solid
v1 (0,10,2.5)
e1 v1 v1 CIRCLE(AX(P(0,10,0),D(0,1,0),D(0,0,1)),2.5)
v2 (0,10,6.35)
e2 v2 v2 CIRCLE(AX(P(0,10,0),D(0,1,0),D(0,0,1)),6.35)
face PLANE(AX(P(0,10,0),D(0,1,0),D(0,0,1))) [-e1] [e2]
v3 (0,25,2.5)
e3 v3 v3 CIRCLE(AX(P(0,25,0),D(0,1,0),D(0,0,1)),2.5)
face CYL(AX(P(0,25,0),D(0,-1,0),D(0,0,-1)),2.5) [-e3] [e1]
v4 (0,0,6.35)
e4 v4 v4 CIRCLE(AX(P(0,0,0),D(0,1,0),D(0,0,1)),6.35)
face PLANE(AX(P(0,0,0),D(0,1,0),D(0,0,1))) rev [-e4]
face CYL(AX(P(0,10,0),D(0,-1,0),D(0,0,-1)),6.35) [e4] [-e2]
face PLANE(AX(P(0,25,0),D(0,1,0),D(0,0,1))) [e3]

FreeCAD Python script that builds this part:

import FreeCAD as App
import Part
import Sketcher
Q = App.Units.Quantity

doc = App.newDocument("Part")
body = doc.addObject("PartDesign::Body", "Body")

# Sketch on XZ plane
sketch1 = doc.addObject("Sketcher::SketchObject", "Sketch")
body.addObject(sketch1)
sketch1.AttachmentSupport = (doc.XZ_Plane, [""])
sketch1.MapMode = "FlatFace"
sketch1.addGeometry(Part.Circle(App.Vector(0, 0, 0), App.Vector(0, 0, 1), 6), False)
sketch1.addConstraint([
    Sketcher.Constraint("Coincident", 0, 3, -1, 1),
    Sketcher.Constraint("Diameter", 0, Q("12.7 mm")),
])
pad1 = doc.addObject("PartDesign::Pad", "Pad")
body.addObject(pad1)
pad1.Profile = sketch1
pad1.Length = 10
pad1.Reversed = True

# Sketch on XZ plane
sketch2 = doc.addObject("Sketcher::SketchObject", "Sketch001")
body.addObject(sketch2)
sketch2.AttachmentSupport = (doc.XZ_Plane, [""])
sketch2.MapMode = "FlatFace"
sketch2.AttachmentOffset = App.Placement(App.Vector(0, 0, -10), App.Rotation())
sketch2.addGeometry(Part.Circle(App.Vector(0, 0, 0), App.Vector(0, 0, 1), 2.5), False)
sketch2.addConstraint([
    Sketcher.Constraint("Coincident", 0, 3, -1, 1),
    Sketcher.Constraint("Diameter", 0, Q("5 mm")),
])
pad2 = doc.addObject("PartDesign::Pad", "Pad001")
body.addObject(pad2)
pad2.Profile = sketch2
pad2.Length = 15
pad2.Reversed = True

doc.recompute()
